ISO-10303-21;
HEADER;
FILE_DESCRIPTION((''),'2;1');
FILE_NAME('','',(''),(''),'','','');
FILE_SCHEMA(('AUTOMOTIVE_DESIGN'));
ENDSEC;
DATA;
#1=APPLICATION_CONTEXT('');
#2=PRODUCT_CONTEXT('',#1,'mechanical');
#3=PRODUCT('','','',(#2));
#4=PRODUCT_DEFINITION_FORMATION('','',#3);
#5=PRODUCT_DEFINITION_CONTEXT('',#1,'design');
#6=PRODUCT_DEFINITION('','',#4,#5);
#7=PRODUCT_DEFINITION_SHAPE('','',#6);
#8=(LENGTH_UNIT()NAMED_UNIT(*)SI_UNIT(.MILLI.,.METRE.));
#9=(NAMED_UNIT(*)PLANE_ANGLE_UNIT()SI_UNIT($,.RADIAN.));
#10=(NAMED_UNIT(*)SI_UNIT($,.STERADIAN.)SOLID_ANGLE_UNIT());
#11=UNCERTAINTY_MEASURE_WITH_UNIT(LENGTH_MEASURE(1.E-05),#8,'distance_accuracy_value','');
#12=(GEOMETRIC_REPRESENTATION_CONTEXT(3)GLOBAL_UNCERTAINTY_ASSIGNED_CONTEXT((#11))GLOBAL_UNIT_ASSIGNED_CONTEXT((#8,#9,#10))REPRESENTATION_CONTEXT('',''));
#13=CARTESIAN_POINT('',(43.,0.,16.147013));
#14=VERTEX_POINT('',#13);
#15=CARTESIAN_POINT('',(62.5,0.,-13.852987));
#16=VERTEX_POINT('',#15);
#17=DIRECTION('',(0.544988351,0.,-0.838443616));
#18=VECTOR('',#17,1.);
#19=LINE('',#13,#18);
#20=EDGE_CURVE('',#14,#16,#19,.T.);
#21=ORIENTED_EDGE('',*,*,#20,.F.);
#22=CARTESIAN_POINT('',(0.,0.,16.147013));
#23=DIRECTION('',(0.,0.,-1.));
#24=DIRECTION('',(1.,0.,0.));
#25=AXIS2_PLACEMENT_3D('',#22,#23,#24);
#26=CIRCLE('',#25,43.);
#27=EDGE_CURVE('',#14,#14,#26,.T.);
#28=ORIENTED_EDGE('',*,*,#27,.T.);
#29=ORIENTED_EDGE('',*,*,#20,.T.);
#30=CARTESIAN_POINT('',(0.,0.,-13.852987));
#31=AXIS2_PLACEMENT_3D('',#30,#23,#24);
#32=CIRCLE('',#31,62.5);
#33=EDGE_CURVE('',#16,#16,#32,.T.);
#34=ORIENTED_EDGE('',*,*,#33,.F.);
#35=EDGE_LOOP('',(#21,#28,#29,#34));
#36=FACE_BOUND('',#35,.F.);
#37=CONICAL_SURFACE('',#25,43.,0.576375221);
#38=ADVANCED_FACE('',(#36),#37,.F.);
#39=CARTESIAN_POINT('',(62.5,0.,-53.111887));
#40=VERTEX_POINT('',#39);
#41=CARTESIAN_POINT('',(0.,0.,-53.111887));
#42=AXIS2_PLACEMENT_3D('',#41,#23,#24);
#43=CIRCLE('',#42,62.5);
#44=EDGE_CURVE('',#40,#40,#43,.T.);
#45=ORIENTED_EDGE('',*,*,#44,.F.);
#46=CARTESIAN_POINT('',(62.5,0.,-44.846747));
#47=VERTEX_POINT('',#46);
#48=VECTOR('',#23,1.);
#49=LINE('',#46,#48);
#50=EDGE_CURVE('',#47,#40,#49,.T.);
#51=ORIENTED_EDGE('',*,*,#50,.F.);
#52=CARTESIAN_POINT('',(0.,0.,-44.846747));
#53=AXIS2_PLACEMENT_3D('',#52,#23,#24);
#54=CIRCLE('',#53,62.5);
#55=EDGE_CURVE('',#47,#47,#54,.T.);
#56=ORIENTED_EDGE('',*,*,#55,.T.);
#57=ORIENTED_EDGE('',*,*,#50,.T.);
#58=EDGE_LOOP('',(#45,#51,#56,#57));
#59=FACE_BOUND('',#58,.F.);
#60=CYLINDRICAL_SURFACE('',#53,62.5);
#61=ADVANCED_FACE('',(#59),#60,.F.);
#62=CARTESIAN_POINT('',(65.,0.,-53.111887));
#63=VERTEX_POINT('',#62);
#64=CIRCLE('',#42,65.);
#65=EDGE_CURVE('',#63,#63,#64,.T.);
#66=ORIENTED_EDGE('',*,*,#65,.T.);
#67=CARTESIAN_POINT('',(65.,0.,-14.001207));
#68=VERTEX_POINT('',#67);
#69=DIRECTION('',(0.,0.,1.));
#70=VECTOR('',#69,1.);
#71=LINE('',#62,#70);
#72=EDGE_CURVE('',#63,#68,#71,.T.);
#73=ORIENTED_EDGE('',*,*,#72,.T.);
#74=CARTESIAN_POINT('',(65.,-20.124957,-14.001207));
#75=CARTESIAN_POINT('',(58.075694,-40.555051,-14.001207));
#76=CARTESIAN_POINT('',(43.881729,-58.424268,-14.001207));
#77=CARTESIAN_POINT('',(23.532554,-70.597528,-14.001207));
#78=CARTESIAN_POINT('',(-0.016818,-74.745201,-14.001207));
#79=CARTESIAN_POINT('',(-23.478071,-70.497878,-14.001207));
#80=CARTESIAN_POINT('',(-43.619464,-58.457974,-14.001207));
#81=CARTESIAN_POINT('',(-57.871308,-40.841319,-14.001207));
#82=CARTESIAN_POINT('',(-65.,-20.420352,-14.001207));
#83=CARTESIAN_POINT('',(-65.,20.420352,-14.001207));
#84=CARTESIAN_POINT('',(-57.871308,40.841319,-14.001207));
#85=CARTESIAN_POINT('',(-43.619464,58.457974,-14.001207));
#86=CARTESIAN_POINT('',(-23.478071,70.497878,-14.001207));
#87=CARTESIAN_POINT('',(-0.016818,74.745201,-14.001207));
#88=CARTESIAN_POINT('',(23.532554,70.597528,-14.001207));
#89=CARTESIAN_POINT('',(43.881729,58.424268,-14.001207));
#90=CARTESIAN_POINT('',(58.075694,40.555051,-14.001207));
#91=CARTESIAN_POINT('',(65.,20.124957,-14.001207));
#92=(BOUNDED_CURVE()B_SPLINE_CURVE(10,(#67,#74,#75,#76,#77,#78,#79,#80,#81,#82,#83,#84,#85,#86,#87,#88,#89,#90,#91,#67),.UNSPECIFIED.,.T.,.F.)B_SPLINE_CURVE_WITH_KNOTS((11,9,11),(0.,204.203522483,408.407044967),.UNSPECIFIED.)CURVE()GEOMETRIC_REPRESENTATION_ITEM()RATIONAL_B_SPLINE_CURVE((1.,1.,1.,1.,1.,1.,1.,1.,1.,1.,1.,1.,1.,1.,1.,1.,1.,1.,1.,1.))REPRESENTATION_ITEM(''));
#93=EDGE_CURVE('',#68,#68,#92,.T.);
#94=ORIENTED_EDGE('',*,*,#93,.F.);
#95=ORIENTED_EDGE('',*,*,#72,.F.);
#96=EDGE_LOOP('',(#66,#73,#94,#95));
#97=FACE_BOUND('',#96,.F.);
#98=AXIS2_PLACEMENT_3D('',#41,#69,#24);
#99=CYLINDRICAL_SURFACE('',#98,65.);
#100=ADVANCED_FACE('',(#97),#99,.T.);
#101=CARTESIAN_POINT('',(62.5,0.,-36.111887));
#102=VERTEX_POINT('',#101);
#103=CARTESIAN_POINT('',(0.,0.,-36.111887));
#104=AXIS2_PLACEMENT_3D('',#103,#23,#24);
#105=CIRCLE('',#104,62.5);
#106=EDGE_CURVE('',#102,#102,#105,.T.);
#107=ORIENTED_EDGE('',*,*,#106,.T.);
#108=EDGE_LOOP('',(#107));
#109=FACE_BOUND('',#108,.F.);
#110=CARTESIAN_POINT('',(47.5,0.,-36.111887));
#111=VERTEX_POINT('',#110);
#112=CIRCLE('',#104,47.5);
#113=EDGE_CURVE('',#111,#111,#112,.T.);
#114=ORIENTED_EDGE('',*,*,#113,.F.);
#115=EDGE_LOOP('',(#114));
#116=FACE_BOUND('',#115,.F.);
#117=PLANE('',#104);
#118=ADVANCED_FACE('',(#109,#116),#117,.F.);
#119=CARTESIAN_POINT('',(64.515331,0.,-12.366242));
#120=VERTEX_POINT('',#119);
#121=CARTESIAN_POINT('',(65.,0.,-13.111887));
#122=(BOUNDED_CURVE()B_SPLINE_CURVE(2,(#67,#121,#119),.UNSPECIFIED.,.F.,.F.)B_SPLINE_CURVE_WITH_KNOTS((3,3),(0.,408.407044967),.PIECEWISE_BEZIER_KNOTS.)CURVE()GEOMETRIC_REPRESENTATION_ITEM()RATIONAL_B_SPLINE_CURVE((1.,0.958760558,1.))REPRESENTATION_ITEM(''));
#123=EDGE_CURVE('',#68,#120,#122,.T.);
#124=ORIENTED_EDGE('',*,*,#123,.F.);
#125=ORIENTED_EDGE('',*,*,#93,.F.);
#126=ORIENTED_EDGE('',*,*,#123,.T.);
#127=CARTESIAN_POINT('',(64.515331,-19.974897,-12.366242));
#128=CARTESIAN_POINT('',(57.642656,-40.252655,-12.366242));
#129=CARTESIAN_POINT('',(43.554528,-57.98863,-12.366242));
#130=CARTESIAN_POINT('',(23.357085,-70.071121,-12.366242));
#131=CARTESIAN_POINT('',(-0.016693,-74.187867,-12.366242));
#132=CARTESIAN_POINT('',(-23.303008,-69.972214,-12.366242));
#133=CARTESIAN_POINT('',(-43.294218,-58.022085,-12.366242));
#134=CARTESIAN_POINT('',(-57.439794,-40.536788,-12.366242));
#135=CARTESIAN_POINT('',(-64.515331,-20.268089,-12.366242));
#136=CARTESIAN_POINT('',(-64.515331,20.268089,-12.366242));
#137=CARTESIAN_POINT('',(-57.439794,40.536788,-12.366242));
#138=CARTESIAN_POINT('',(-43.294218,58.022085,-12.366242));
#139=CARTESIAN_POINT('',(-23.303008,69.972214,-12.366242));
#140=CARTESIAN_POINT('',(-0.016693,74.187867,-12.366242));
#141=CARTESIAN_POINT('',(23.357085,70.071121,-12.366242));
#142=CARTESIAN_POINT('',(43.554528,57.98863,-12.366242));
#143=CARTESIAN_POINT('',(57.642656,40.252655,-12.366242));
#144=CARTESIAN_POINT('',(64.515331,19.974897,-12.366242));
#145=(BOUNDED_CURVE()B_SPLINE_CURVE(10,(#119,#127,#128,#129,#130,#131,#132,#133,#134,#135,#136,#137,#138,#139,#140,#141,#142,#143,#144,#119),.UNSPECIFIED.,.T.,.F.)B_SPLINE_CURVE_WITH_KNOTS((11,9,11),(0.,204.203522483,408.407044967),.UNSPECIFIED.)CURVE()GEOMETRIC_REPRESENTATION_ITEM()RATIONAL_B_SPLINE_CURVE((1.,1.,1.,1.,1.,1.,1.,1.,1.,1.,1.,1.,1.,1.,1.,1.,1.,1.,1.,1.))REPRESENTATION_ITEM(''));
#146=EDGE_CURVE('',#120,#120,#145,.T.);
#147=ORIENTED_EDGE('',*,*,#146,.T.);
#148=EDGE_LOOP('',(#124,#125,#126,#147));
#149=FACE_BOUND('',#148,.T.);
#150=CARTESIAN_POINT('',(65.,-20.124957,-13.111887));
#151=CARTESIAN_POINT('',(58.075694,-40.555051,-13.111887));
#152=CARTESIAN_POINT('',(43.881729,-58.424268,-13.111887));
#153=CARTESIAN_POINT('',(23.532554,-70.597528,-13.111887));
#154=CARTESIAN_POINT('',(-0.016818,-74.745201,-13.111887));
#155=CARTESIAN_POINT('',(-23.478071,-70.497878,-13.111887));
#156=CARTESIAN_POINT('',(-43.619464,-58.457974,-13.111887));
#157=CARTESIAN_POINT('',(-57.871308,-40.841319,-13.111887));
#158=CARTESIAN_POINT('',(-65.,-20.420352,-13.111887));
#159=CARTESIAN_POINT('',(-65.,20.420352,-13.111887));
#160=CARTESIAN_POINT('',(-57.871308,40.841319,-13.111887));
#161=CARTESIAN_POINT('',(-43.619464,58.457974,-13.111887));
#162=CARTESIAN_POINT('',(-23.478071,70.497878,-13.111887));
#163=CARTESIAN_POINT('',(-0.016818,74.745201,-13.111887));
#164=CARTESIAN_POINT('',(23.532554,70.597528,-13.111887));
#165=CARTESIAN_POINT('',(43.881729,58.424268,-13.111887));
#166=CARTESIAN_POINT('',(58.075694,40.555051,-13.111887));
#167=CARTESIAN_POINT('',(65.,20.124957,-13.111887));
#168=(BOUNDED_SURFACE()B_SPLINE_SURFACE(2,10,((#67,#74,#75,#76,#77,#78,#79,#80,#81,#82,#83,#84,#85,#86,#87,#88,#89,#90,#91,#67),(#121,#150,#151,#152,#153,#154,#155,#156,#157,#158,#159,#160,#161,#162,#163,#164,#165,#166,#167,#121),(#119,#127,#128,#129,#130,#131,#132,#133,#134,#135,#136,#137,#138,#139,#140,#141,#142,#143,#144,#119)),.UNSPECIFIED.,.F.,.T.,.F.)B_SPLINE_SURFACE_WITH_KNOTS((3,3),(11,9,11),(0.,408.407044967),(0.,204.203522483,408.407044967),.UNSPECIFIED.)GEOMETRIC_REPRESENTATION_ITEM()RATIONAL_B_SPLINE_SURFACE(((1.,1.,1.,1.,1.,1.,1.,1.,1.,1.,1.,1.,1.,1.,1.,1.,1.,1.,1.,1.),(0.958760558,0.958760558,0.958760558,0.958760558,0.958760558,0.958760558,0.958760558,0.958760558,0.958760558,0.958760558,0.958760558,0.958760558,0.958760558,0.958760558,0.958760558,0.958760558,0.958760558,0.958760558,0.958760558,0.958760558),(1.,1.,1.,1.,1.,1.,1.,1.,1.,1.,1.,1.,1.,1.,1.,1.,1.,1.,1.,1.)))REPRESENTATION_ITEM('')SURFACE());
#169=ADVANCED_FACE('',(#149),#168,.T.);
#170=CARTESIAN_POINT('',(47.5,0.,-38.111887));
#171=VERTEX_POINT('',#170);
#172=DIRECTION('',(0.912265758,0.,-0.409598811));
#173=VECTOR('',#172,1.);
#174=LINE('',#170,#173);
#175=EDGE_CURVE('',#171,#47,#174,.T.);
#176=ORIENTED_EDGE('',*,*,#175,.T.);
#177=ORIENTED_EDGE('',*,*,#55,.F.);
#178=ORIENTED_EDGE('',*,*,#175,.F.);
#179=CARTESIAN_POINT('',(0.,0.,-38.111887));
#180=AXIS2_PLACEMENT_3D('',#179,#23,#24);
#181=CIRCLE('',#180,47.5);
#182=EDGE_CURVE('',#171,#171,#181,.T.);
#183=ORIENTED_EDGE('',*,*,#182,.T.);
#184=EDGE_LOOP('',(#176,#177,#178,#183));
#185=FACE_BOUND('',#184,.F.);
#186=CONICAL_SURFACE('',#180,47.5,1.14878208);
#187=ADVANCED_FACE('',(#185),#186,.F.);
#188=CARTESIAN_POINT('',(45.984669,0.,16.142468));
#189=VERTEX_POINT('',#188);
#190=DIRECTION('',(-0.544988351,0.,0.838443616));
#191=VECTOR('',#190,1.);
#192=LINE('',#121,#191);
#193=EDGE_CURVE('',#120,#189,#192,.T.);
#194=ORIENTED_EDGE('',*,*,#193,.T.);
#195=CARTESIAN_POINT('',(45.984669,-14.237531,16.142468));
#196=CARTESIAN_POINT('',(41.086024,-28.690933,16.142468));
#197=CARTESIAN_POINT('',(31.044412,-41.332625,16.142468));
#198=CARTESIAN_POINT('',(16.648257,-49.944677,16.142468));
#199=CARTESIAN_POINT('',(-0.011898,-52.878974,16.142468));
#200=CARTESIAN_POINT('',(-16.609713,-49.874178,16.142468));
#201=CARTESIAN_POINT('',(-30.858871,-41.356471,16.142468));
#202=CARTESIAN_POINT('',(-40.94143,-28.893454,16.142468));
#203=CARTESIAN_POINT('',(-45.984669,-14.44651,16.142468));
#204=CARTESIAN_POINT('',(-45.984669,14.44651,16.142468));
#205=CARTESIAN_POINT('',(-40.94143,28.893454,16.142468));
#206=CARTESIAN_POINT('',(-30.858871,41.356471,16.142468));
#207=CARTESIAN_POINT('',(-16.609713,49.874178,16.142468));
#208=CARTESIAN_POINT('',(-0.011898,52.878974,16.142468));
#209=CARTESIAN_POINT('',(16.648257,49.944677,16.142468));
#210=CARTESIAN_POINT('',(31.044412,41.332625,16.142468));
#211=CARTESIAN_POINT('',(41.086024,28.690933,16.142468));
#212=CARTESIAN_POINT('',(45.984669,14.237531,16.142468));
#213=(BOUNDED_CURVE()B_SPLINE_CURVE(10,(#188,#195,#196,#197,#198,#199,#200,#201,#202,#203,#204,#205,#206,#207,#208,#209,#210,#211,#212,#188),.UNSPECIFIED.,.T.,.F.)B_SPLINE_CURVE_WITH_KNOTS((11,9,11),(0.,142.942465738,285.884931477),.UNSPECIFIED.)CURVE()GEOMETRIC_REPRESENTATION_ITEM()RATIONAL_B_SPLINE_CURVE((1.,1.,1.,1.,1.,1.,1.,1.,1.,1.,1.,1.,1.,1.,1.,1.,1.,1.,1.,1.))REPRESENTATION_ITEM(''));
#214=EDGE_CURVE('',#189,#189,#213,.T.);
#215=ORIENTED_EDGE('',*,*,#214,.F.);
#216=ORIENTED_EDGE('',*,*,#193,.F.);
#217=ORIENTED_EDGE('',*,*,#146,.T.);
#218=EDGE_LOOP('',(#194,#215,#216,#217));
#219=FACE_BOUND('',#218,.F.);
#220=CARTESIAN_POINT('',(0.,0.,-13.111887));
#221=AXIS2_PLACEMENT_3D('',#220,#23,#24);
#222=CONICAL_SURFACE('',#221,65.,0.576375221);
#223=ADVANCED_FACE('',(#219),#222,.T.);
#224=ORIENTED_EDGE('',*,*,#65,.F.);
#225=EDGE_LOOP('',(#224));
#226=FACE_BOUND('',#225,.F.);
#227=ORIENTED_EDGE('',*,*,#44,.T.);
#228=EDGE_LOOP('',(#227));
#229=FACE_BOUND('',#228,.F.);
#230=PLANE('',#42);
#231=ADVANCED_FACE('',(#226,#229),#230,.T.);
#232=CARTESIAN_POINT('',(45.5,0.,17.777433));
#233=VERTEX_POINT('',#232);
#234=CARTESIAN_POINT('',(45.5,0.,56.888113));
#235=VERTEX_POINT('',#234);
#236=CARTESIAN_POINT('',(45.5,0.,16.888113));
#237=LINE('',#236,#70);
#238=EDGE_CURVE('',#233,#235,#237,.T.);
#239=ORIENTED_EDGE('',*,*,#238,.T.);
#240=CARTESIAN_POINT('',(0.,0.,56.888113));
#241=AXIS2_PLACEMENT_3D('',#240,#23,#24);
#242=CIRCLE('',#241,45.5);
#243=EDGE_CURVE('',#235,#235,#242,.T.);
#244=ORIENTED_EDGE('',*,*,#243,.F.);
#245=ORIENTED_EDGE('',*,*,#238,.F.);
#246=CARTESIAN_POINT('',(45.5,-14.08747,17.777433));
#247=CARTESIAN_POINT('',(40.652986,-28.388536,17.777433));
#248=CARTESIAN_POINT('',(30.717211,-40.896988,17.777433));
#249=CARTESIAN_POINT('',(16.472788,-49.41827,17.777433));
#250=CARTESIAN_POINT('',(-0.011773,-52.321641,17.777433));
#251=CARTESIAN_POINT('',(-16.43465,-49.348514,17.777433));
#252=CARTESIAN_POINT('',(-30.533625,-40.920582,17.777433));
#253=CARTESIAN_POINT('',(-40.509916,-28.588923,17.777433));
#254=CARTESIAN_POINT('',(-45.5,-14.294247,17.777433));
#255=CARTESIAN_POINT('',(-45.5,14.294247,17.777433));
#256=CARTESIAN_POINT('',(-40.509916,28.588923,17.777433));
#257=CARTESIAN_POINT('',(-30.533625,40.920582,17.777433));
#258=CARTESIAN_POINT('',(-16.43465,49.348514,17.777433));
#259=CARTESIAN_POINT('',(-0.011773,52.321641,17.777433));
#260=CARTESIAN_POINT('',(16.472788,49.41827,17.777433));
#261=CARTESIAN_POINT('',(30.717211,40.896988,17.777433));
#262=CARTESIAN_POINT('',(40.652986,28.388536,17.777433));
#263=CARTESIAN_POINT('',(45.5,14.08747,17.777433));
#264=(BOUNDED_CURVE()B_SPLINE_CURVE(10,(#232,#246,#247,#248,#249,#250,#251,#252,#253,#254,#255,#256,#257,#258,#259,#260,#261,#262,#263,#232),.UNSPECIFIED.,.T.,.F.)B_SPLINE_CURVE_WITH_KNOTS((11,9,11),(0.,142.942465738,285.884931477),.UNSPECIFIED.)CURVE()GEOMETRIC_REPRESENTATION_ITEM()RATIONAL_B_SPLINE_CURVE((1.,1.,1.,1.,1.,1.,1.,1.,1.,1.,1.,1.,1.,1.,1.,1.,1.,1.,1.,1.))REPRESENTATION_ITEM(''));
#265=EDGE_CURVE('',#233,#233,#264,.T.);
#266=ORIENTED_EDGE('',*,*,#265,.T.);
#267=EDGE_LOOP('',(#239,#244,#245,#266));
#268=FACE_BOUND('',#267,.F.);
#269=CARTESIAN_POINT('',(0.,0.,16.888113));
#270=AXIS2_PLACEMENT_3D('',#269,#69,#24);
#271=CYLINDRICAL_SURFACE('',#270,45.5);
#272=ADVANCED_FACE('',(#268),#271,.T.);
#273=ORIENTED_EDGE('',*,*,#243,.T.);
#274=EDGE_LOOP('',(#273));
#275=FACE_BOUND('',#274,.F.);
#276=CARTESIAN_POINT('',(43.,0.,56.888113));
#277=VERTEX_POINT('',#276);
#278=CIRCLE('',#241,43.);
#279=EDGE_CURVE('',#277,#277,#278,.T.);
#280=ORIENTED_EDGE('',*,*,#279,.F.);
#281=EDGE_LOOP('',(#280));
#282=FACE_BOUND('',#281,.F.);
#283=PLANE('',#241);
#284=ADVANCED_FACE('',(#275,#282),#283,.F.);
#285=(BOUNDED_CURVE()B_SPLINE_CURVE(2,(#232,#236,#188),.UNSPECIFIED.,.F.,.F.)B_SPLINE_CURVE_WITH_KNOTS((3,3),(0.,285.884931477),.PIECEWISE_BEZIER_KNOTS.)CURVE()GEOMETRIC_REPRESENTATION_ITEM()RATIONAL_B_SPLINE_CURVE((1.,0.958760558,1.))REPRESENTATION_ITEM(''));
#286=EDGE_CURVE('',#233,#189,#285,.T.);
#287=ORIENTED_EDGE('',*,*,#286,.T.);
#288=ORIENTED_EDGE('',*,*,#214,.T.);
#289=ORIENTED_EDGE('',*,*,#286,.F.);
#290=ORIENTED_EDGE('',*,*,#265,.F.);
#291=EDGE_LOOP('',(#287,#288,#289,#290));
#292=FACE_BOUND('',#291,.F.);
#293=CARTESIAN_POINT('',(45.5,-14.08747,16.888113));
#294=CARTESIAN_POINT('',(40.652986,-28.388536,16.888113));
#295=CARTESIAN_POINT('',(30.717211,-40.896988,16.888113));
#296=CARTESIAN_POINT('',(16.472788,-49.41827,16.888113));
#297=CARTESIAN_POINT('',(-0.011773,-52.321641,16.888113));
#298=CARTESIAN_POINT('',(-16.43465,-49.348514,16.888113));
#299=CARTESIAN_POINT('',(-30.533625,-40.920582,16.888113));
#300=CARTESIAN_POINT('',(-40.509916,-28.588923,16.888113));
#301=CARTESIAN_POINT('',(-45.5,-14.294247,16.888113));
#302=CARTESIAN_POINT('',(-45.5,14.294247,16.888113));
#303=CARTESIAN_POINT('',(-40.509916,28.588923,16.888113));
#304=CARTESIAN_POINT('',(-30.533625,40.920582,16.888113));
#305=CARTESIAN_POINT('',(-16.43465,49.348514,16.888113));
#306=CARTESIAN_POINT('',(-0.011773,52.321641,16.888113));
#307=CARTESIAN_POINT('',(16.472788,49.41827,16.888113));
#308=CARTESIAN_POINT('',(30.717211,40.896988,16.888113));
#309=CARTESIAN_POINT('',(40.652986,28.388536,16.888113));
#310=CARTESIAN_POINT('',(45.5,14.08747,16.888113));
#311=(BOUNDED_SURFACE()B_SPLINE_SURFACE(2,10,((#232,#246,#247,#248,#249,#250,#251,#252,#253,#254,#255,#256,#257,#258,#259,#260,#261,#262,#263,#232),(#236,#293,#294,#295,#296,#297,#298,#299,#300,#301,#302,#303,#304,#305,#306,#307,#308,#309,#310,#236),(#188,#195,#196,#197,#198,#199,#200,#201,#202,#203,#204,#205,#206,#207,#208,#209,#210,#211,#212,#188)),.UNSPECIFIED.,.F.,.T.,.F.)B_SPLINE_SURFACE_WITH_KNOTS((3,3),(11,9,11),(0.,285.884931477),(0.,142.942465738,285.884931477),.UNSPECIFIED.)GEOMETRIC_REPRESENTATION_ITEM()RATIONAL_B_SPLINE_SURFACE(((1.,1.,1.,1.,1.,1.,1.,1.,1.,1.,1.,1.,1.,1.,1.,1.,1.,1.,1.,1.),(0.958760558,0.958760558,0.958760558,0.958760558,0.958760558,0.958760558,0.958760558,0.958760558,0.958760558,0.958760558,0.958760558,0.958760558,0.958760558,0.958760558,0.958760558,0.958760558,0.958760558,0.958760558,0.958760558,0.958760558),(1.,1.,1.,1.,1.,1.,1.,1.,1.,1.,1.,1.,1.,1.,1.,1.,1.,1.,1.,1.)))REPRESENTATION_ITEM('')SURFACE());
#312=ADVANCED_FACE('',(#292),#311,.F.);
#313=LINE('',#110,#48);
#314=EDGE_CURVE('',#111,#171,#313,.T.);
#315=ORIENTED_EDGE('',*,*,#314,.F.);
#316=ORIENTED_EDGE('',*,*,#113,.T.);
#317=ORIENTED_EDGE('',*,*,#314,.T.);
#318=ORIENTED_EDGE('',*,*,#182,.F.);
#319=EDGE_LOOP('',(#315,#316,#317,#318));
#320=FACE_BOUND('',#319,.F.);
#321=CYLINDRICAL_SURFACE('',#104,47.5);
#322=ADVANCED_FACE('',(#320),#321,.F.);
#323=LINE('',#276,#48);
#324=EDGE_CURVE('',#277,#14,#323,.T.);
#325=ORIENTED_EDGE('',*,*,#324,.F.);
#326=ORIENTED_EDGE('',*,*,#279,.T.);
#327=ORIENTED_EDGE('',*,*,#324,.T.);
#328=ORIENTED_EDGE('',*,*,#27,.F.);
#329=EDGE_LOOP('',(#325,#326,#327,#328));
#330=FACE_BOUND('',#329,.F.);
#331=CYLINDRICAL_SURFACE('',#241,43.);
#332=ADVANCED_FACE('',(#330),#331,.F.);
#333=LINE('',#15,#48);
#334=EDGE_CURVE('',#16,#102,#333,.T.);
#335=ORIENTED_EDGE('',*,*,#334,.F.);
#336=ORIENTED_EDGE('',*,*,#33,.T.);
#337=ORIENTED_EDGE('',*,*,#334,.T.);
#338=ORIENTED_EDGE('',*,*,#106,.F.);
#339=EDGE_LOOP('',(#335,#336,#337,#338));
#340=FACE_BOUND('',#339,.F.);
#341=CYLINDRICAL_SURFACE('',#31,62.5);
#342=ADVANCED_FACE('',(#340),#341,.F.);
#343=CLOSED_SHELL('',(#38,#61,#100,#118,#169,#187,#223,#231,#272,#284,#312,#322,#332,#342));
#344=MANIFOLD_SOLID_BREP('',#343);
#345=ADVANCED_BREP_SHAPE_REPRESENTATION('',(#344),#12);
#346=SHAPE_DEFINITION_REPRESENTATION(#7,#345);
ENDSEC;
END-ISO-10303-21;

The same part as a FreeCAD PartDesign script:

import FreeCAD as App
import Part
import Sketcher


def edges_at(feature, points):
    """Names of the edges that pass closest to the given points."""
    edges = feature.Shape.Edges
    near = lambda p: min(range(len(edges)), key=lambda i: edges[i].distToShape(Part.Vertex(*p))[0])
    return sorted({f"Edge{near(p) + 1}" for p in points})

doc = App.newDocument("Part")
body = doc.addObject("PartDesign::Body", "Body")

sketch1 = body.newObject("Sketcher::SketchObject", "Sketch")
sketch1.AttachmentSupport = (doc.getObject("XZ_Plane"), [""])
sketch1.MapMode = "FlatFace"
sketch1.addGeometry([
    Part.LineSegment(App.Vector(45.5, 16.9, 0), App.Vector(45.5, 56.9, 0)),
    Part.LineSegment(App.Vector(45.5, 56.9, 0), App.Vector(43, 56.9, 0)),
    Part.LineSegment(App.Vector(43, 56.9, 0), App.Vector(43, 16.1, 0)),
    Part.LineSegment(App.Vector(43, 16.1, 0), App.Vector(62.5, -13.9, 0)),
    Part.LineSegment(App.Vector(62.5, -13.9, 0), App.Vector(62.5, -36.1, 0)),
    Part.LineSegment(App.Vector(62.5, -36.1, 0), App.Vector(47.5, -36.1, 0)),
    Part.LineSegment(App.Vector(47.5, -36.1, 0), App.Vector(47.5, -38.1, 0)),
    Part.LineSegment(App.Vector(47.5, -38.1, 0), App.Vector(62.5, -44.8, 0)),
    Part.LineSegment(App.Vector(62.5, -44.8, 0), App.Vector(62.5, -53.1, 0)),
    Part.LineSegment(App.Vector(62.5, -53.1, 0), App.Vector(65, -53.1, 0)),
    Part.LineSegment(App.Vector(65, -53.1, 0), App.Vector(65, -13.1, 0)),
    Part.LineSegment(App.Vector(65, -13.1, 0), App.Vector(45.5, 16.9, 0)),
], False)
sketch1.addConstraint([
    Sketcher.Constraint("Coincident", 0, 2, 1, 1),
    Sketcher.Constraint("Coincident", 1, 2, 2, 1),
    Sketcher.Constraint("Coincident", 2, 2, 3, 1),
    Sketcher.Constraint("Coincident", 3, 2, 4, 1),
    Sketcher.Constraint("Coincident", 4, 2, 5, 1),
    Sketcher.Constraint("Coincident", 5, 2, 6, 1),
    Sketcher.Constraint("Coincident", 6, 2, 7, 1),
    Sketcher.Constraint("Coincident", 7, 2, 8, 1),
    Sketcher.Constraint("Coincident", 8, 2, 9, 1),
    Sketcher.Constraint("Coincident", 9, 2, 10, 1),
    Sketcher.Constraint("Coincident", 10, 2, 11, 1),
    Sketcher.Constraint("Coincident", 11, 2, 0, 1),
    Sketcher.Constraint("Vertical", 0),
    Sketcher.Constraint("Horizontal", 1),
    Sketcher.Constraint("Vertical", 2),
    Sketcher.Constraint("Vertical", 4),
    Sketcher.Constraint("Horizontal", 5),
    Sketcher.Constraint("Vertical", 6),
    Sketcher.Constraint("Vertical", 8),
    Sketcher.Constraint("Horizontal", 9),
    Sketcher.Constraint("Vertical", 10),
    Sketcher.Constraint("Parallel", 3, 11),
    Sketcher.Constraint("Vertical", 4, 2, 7, 2),
    Sketcher.Constraint("Equal", 1, 9),
    Sketcher.Constraint("Equal", 0, 10),
    Sketcher.Constraint("DistanceX", 5, 2, 5, 1, 15.0),
    Sketcher.Constraint("DistanceY", 0, 1, 0, 2, 40.0),
    Sketcher.Constraint("DistanceY", 6, 2, 6, 1, 2.0),
    Sketcher.Constraint("DistanceX", 1, 2, 1, 1, 2.5),
    Sketcher.Constraint("DistanceX", -1, 1, 1, 2, 43.0),
    Sketcher.Constraint("DistanceX", -1, 1, 9, 2, 65.0),
    Sketcher.Constraint("DistanceY", 3, 2, 2, 2, 30.0),
    Sketcher.Constraint("DistanceY", 4, 2, 0, 2, 93.0),
    Sketcher.Constraint("DistanceY", 2, 2, 2, 1, 40.7411),
    Sketcher.Constraint("DistanceY", 8, 2, 8, 1, 8.26514),
    Sketcher.Constraint("DistanceY", -1, 1, 0, 2, 56.888113),
])
revolution = body.newObject("PartDesign::Revolution", "Revolution")
revolution.Profile = sketch1
revolution.ReferenceAxis = (sketch1, ["V_Axis"])
revolution.Angle = 360
doc.recompute()

fillet = body.newObject("PartDesign::Fillet", "Fillet")
fillet.Base = (revolution, edges_at(revolution, [(-65, 0, -13.112), (-45.5, 0, 16.888)]))
fillet.Radius = 3

doc.recompute()
